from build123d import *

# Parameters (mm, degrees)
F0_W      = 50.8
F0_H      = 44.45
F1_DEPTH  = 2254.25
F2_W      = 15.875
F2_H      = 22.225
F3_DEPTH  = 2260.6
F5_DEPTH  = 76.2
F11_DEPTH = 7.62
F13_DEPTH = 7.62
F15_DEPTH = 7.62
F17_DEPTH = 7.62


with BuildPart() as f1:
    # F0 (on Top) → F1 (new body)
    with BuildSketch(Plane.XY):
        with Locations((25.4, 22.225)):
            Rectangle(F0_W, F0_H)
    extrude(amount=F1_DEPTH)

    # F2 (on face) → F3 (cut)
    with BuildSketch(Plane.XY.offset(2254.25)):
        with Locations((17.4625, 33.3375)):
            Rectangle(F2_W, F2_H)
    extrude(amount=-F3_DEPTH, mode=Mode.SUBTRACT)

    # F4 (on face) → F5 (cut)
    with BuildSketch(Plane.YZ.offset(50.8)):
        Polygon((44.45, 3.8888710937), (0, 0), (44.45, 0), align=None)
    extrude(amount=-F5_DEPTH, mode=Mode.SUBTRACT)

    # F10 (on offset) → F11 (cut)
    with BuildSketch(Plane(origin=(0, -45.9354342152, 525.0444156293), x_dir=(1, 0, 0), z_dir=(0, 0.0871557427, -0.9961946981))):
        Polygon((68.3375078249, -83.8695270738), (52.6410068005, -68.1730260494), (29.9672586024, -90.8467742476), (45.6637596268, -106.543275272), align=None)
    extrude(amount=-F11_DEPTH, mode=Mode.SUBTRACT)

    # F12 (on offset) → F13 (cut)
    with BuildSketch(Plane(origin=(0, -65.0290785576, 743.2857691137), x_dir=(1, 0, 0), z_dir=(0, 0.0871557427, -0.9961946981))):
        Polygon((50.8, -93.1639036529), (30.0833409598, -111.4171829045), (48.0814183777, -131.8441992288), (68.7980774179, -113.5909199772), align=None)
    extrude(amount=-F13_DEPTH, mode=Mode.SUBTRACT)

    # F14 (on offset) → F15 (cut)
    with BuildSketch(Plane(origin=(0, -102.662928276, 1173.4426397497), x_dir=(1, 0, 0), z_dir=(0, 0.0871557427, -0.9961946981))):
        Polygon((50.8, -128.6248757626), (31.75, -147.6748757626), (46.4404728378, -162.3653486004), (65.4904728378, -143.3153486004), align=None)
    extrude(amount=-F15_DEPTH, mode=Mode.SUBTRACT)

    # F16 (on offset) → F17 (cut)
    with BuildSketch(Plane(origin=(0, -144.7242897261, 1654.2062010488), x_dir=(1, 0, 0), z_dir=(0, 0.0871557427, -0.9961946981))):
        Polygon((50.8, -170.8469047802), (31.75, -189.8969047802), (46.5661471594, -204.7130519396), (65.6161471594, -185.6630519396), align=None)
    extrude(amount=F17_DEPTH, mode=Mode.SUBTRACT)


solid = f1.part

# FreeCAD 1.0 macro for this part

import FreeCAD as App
import Part
import Sketcher
Q = App.Units.Quantity

doc = App.newDocument("Part")
body = doc.addObject("PartDesign::Body", "Body")

sketch1 = body.newObject("Sketcher::SketchObject", "Sketch")
sketch1.AttachmentSupport = (doc.getObject("XY_Plane"), [""])
sketch1.MapMode = "FlatFace"
sketch1.addGeometry(Part.LineSegment(App.Vector(0, 44, 0), App.Vector(0, 0, 0)), False)
sketch1.addGeometry(Part.LineSegment(App.Vector(0, 0, 0), App.Vector(51, 0, 0)), False)
sketch1.addGeometry(Part.LineSegment(App.Vector(51, 0, 0), App.Vector(51, 44, 0)), False)
sketch1.addGeometry(Part.LineSegment(App.Vector(51, 44, 0), App.Vector(0, 44, 0)), False)
sketch1.addConstraint(Sketcher.Constraint("Coincident", 0, 2, 1, 1))
sketch1.addConstraint(Sketcher.Constraint("Coincident", 1, 2, 2, 1))
sketch1.addConstraint(Sketcher.Constraint("Coincident", 2, 2, 3, 1))
sketch1.addConstraint(Sketcher.Constraint("Coincident", 3, 2, 0, 1))
sketch1.addConstraint(Sketcher.Constraint("Vertical", 0))
sketch1.addConstraint(Sketcher.Constraint("Horizontal", 1))
sketch1.addConstraint(Sketcher.Constraint("Vertical", 2))
sketch1.addConstraint(Sketcher.Constraint("Horizontal", 3))
sketch1.addConstraint(Sketcher.Constraint("Coincident", 0, 2, -1, 1))
sketch1.addConstraint(Sketcher.Constraint("DistanceX", 1, 1, 1, 2, Q("2 in")))
sketch1.addConstraint(Sketcher.Constraint("DistanceY", 0, 2, 0, 1, Q("1.75 in")))
pad1 = body.newObject("PartDesign::Pad", "Pad")
pad1.Profile = sketch1
pad1.Length = Q("88.75 in")

sketch2 = body.newObject("Sketcher::SketchObject", "Sketch001")
sketch2.AttachmentSupport = (doc.getObject("XY_Plane"), [""])
sketch2.MapMode = "FlatFace"
sketch2.AttachmentOffset = App.Placement(App.Vector(0, 0, 88.75 * 25.4), App.Rotation())
sketch2.addGeometry(Part.LineSegment(App.Vector(10, 44, 0), App.Vector(10, 22, 0)), False)
sketch2.addGeometry(Part.LineSegment(App.Vector(10, 22, 0), App.Vector(25, 22, 0)), False)
sketch2.addGeometry(Part.LineSegment(App.Vector(25, 22, 0), App.Vector(25, 44, 0)), False)
sketch2.addGeometry(Part.LineSegment(App.Vector(25, 44, 0), App.Vector(10, 44, 0)), False)
sketch2.addConstraint(Sketcher.Constraint("Coincident", 0, 2, 1, 1))
sketch2.addConstraint(Sketcher.Constraint("Coincident", 1, 2, 2, 1))
sketch2.addConstraint(Sketcher.Constraint("Coincident", 2, 2, 3, 1))
sketch2.addConstraint(Sketcher.Constraint("Coincident", 3, 2, 0, 1))
sketch2.addConstraint(Sketcher.Constraint("Vertical", 0))
sketch2.addConstraint(Sketcher.Constraint("Horizontal", 1))
sketch2.addConstraint(Sketcher.Constraint("Vertical", 2))
sketch2.addConstraint(Sketcher.Constraint("Horizontal", 3))
sketch2.addConstraint(Sketcher.Constraint("DistanceX", -1, 1, 1, 2, Q("1 in")))
sketch2.addConstraint(Sketcher.Constraint("DistanceX", 1, 1, 1, 2, Q("0.625 in")))
sketch2.addConstraint(Sketcher.Constraint("DistanceY", 0, 2, 0, 1, Q("0.875 in")))
sketch2.addConstraint(Sketcher.Constraint("DistanceY", -1, 1, 2, 2, Q("1.75 in")))
pocket1 = body.newObject("PartDesign::Pocket", "Pocket")
pocket1.Profile = sketch2
pocket1.Length = Q("89 in")

sketch3 = body.newObject("Sketcher::SketchObject", "Sketch002")
sketch3.AttachmentSupport = (doc.getObject("YZ_Plane"), [""])
sketch3.MapMode = "FlatFace"
sketch3.AttachmentOffset = App.Placement(App.Vector(0, 0, 2 * 25.4), App.Rotation())
sketch3.addGeometry(Part.LineSegment(App.Vector(44.5, 3.9, 0), App.Vector(0, 0, 0)), False)
sketch3.addGeometry(Part.LineSegment(App.Vector(0, 0, 0), App.Vector(44.5, 0, 0)), False)
sketch3.addGeometry(Part.LineSegment(App.Vector(44.5, 0, 0), App.Vector(44.5, 3.9, 0)), False)
sketch3.addConstraint(Sketcher.Constraint("Coincident", 0, 2, 1, 1))
sketch3.addConstraint(Sketcher.Constraint("Coincident", 1, 2, 2, 1))
sketch3.addConstraint(Sketcher.Constraint("Coincident", 2, 2, 0, 1))
sketch3.addConstraint(Sketcher.Constraint("Horizontal", 1))
sketch3.addConstraint(Sketcher.Constraint("Vertical", 2))
sketch3.addConstraint(Sketcher.Constraint("Coincident", 0, 2, -1, 1))
sketch3.addConstraint(Sketcher.Constraint("Angle", 0, Q("-175 deg")))
sketch3.addConstraint(Sketcher.Constraint("DistanceX", 1, 1, 1, 2, Q("1.75 in")))
pocket2 = body.newObject("PartDesign::Pocket", "Pocket001")
pocket2.Profile = sketch3
pocket2.Length = Q("3 in")

sketch4 = body.newObject("Sketcher::SketchObject", "Sketch003")
sketch4.Placement = App.Placement(App.Vector(0, -45.935434, 525.044416), App.Rotation(App.Vector(1, 0, 0), App.Vector(0, -0.996194698, -0.087155743), App.Vector(0, 0.087155743, -0.996194698), "ZXY"))
sketch4.addGeometry(Part.LineSegment(App.Vector(68, -84, 0), App.Vector(53, -68, 0)), False)
sketch4.addGeometry(Part.LineSegment(App.Vector(53, -68, 0), App.Vector(30, -91, 0)), False)
sketch4.addGeometry(Part.LineSegment(App.Vector(30, -91, 0), App.Vector(46, -107, 0)), False)
sketch4.addGeometry(Part.LineSegment(App.Vector(46, -107, 0), App.Vector(68, -84, 0)), False)
sketch4.addConstraint(Sketcher.Constraint("Coincident", 0, 2, 1, 1))
sketch4.addConstraint(Sketcher.Constraint("Coincident", 1, 2, 2, 1))
sketch4.addConstraint(Sketcher.Constraint("Coincident", 2, 2, 3, 1))
sketch4.addConstraint(Sketcher.Constraint("Coincident", 3, 2, 0, 1))
sketch4.addConstraint(Sketcher.Constraint("Perpendicular", 0, 1))
sketch4.addConstraint(Sketcher.Constraint("Perpendicular", 1, 2))
sketch4.addConstraint(Sketcher.Constraint("Perpendicular", 2, 3))
sketch4.addConstraint(Sketcher.Constraint("Angle", 0, Q("135 deg")))
sketch4.addConstraint(Sketcher.Constraint("DistanceX", 1, 2, 2, 2, 15.696501))
sketch4.addConstraint(Sketcher.Constraint("DistanceX", -1, 1, 1, 2, 29.967259))
sketch4.addConstraint(Sketcher.Constraint("DistanceX", 1, 2, 0, 2, 22.673748))
sketch4.addConstraint(Sketcher.Constraint("DistanceY", 0, 2, -1, 1, 68.173026))
pocket3 = body.newObject("PartDesign::Pocket", "Pocket002")
pocket3.Profile = sketch4
pocket3.Length = Q("0.3 in")

sketch5 = body.newObject("Sketcher::SketchObject", "Sketch004")
sketch5.Placement = App.Placement(App.Vector(0, -65.029079, 743.285769), App.Rotation(App.Vector(1, 0, 0), App.Vector(0, -0.996194698, -0.087155743), App.Vector(0, 0.087155743, -0.996194698), "ZXY"))
sketch5.addGeometry(Part.LineSegment(App.Vector(51, -93, 0), App.Vector(30, -111, 0)), False)
sketch5.addGeometry(Part.LineSegment(App.Vector(30, -111, 0), App.Vector(48, -132, 0)), False)
sketch5.addGeometry(Part.LineSegment(App.Vector(48, -132, 0), App.Vector(69, -114, 0)), False)
sketch5.addGeometry(Part.LineSegment(App.Vector(69, -114, 0), App.Vector(51, -93, 0)), False)
sketch5.addConstraint(Sketcher.Constraint("Coincident", 0, 2, 1, 1))
sketch5.addConstraint(Sketcher.Constraint("Coincident", 1, 2, 2, 1))
sketch5.addConstraint(Sketcher.Constraint("Coincident", 2, 2, 3, 1))
sketch5.addConstraint(Sketcher.Constraint("Coincident", 3, 2, 0, 1))
sketch5.addConstraint(Sketcher.Constraint("Perpendicular", 0, 1))
sketch5.addConstraint(Sketcher.Constraint("Perpendicular", 1, 2))
sketch5.addConstraint(Sketcher.Constraint("Perpendicular", 2, 3))
sketch5.addConstraint(Sketcher.Constraint("DistanceX", -1, 1, 3, 2, Q("2 in")))
sketch5.addConstraint(Sketcher.Constraint("DistanceY", 1, 2, -1, 1, 131.844199))
sketch5.addConstraint(Sketcher.Constraint("DistanceX", -1, 1, 0, 2, 30.083341))
sketch5.addConstraint(Sketcher.Constraint("DistanceX", -1, 1, 1, 2, 48.081418))
sketch5.addConstraint(Sketcher.Constraint("DistanceY", 2, 2, -1, 1, 113.59092))
pocket4 = body.newObject("PartDesign::Pocket", "Pocket003")
pocket4.Profile = sketch5
pocket4.Length = Q("0.3 in")

sketch6 = body.newObject("Sketcher::SketchObject", "Sketch005")
sketch6.Placement = App.Placement(App.Vector(0, -102.662928, 1173.44264), App.Rotation(App.Vector(1, 0, 0), App.Vector(0, -0.996194698, -0.087155743), App.Vector(0, 0.087155743, -0.996194698), "ZXY"))
sketch6.addGeometry(Part.LineSegment(App.Vector(51, -129, 0), App.Vector(32, -148, 0)), False)
sketch6.addGeometry(Part.LineSegment(App.Vector(32, -148, 0), App.Vector(46, -162, 0)), False)
sketch6.addGeometry(Part.LineSegment(App.Vector(46, -162, 0), App.Vector(65, -143, 0)), False)
sketch6.addGeometry(Part.LineSegment(App.Vector(65, -143, 0), App.Vector(51, -129, 0)), False)
sketch6.addConstraint(Sketcher.Constraint("Coincident", 0, 2, 1, 1))
sketch6.addConstraint(Sketcher.Constraint("Coincident", 1, 2, 2, 1))
sketch6.addConstraint(Sketcher.Constraint("Coincident", 2, 2, 3, 1))
sketch6.addConstraint(Sketcher.Constraint("Coincident", 3, 2, 0, 1))
sketch6.addConstraint(Sketcher.Constraint("Perpendicular", 0, 1))
sketch6.addConstraint(Sketcher.Constraint("Perpendicular", 1, 2))
sketch6.addConstraint(Sketcher.Constraint("Perpendicular", 2, 3))
sketch6.addConstraint(Sketcher.Constraint("DistanceX", -1, 1, 3, 2, Q("2 in")))
sketch6.addConstraint(Sketcher.Constraint("Angle", 0, Q("-135 deg")))
sketch6.addConstraint(Sketcher.Constraint("DistanceX", -1, 1, 0, 2, Q("1.25 in")))
sketch6.addConstraint(Sketcher.Constraint("DistanceY", 1, 2, -1, 1, 162.365349))
sketch6.addConstraint(Sketcher.Constraint("Distance", 1, 20.775466))
pocket5 = body.newObject("PartDesign::Pocket", "Pocket004")
pocket5.Profile = sketch6
pocket5.Length = Q("0.3 in")

sketch7 = body.newObject("Sketcher::SketchObject", "Sketch006")
sketch7.Placement = App.Placement(App.Vector(0, -144.72429, 1654.206201), App.Rotation(App.Vector(1, 0, 0), App.Vector(0, -0.996194698, -0.087155743), App.Vector(0, 0.087155743, -0.996194698), "ZXY"))
sketch7.addGeometry(Part.LineSegment(App.Vector(51, -171, 0), App.Vector(32, -190, 0)), False)
sketch7.addGeometry(Part.LineSegment(App.Vector(32, -190, 0), App.Vector(47, -205, 0)), False)
sketch7.addGeometry(Part.LineSegment(App.Vector(47, -205, 0), App.Vector(66, -186, 0)), False)
sketch7.addGeometry(Part.LineSegment(App.Vector(66, -186, 0), App.Vector(51, -171, 0)), False)
sketch7.addConstraint(Sketcher.Constraint("Coincident", 0, 2, 1, 1))
sketch7.addConstraint(Sketcher.Constraint("Coincident", 1, 2, 2, 1))
sketch7.addConstraint(Sketcher.Constraint("Coincident", 2, 2, 3, 1))
sketch7.addConstraint(Sketcher.Constraint("Coincident", 3, 2, 0, 1))
sketch7.addConstraint(Sketcher.Constraint("Perpendicular", 0, 1))
sketch7.addConstraint(Sketcher.Constraint("Perpendicular", 1, 2))
sketch7.addConstraint(Sketcher.Constraint("Perpendicular", 2, 3))
sketch7.addConstraint(Sketcher.Constraint("DistanceX", -1, 1, 3, 2, Q("2 in")))
sketch7.addConstraint(Sketcher.Constraint("Angle", 0, Q("-135 deg")))
sketch7.addConstraint(Sketcher.Constraint("DistanceX", -1, 1, 0, 2, Q("1.25 in")))
sketch7.addConstraint(Sketcher.Constraint("DistanceY", 1, 2, -1, 1, 204.713052))
sketch7.addConstraint(Sketcher.Constraint("Distance", 1, 20.953196))
pocket6 = body.newObject("PartDesign::Pocket", "Pocket005")
pocket6.Profile = sketch7
pocket6.Length = Q("0.3 in")
pocket6.Reversed = True

doc.recompute()
